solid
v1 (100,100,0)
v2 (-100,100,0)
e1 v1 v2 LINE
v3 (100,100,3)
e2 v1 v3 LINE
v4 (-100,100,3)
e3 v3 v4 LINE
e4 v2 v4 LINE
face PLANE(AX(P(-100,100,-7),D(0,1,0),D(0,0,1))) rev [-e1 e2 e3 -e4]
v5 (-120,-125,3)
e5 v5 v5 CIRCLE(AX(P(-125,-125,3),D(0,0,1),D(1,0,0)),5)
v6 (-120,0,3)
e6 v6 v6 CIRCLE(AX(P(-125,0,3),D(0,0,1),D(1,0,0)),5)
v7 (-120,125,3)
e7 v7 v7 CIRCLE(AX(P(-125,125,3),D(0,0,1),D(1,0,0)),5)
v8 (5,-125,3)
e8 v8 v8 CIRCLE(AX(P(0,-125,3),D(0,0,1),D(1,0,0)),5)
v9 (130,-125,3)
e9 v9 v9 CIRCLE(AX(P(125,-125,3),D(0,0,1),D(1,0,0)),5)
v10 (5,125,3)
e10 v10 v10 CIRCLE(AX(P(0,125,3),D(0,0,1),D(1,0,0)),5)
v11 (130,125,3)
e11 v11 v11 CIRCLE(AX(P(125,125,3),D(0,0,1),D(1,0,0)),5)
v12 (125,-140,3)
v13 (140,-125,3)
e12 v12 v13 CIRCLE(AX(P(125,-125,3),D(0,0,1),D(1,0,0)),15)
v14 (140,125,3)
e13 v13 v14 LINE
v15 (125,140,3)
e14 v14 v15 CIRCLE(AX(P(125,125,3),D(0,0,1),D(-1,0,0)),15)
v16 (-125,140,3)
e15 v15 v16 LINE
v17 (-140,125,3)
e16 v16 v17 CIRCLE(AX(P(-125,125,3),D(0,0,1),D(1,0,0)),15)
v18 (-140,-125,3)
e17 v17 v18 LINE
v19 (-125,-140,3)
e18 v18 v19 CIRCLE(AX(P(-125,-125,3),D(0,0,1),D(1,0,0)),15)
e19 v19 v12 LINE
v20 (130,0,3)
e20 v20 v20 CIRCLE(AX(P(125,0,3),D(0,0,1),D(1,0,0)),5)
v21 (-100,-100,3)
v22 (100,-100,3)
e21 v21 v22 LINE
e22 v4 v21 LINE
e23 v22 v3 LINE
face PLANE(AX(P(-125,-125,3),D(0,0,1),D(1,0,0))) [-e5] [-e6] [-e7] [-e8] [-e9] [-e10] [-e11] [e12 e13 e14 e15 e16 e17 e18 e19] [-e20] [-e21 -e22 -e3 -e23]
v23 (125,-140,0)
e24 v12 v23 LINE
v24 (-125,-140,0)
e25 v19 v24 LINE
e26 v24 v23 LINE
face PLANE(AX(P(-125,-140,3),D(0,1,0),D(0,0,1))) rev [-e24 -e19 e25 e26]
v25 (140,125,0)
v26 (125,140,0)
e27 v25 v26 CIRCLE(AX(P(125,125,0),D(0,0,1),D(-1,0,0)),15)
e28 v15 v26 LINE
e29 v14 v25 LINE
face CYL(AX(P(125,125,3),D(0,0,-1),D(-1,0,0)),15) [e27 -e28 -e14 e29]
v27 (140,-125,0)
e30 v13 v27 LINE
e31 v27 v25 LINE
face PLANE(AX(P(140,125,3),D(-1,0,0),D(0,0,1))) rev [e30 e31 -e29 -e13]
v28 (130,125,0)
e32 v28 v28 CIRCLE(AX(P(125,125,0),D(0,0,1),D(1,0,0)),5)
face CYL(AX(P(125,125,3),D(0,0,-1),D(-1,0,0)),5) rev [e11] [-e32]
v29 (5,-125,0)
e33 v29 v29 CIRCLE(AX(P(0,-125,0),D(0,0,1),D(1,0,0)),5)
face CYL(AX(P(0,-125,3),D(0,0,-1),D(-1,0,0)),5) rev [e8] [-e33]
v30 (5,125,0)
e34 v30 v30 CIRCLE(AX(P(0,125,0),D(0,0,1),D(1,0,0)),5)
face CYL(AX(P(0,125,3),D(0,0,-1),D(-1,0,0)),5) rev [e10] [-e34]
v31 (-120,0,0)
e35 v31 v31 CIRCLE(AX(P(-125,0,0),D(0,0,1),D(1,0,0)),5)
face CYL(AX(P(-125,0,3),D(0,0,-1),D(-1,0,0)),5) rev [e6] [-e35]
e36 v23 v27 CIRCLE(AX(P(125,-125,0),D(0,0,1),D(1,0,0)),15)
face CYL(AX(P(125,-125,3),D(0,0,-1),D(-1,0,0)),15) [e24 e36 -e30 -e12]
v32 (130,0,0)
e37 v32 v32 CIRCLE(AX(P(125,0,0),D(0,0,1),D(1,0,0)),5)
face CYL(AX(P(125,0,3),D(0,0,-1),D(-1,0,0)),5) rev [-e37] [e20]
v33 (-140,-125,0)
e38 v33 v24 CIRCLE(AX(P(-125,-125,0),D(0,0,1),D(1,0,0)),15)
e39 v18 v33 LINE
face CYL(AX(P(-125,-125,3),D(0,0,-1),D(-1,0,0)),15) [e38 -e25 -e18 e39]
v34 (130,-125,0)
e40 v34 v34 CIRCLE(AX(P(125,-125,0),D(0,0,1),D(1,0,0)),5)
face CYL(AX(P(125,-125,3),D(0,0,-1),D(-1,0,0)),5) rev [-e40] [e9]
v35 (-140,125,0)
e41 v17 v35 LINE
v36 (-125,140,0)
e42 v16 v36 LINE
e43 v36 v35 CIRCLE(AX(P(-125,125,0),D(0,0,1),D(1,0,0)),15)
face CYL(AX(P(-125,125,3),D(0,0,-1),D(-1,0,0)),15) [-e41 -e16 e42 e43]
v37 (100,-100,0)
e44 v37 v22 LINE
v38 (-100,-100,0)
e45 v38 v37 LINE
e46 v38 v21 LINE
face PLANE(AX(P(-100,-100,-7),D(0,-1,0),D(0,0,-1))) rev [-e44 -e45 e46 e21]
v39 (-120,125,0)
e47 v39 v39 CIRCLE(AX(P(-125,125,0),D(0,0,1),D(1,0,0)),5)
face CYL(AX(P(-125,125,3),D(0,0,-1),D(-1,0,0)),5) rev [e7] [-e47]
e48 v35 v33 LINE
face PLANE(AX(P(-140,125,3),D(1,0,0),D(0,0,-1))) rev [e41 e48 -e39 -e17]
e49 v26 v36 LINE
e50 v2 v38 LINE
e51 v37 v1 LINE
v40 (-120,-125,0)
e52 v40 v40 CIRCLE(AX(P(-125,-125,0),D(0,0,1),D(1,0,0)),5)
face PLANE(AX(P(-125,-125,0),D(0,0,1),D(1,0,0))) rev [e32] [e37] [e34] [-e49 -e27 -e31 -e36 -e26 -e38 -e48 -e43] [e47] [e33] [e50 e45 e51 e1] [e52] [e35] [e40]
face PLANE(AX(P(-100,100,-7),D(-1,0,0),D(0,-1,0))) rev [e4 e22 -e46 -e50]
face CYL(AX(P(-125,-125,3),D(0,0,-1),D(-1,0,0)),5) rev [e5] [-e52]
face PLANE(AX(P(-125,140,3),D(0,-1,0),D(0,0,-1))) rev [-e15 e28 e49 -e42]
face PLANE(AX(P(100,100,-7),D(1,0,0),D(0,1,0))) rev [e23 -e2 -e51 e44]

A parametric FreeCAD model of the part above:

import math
import FreeCAD as App
import Part
import Sketcher

V = App.Vector
Q = App.Units.Quantity

doc = App.newDocument("Part")
body = doc.addObject("PartDesign::Body", "Body")

# Sketch on XY plane
sketch1 = body.newObject("Sketcher::SketchObject", "Sketch")
sketch1.AttachmentSupport = (doc.getObject("XY_Plane"), [""])
sketch1.MapMode = "FlatFace"
sketch1.addGeometry([
    Part.LineSegment(V(125, 140, 0), V(-125, 140, 0)),  # 0
    Part.ArcOfCircle(Part.Circle(V(-125, 125, 0), V(0, 0, 1), 15), math.radians(90), math.radians(180)),  # 1
    Part.LineSegment(V(-140, 125, 0), V(-140, -125, 0)),  # 2
    Part.ArcOfCircle(Part.Circle(V(-125, -125, 0), V(0, 0, 1), 15), math.radians(180), math.radians(270)),  # 3
    Part.LineSegment(V(-125, -140, 0), V(125, -140, 0)),  # 4
    Part.ArcOfCircle(Part.Circle(V(125, -125, 0), V(0, 0, 1), 15), math.radians(-90), math.radians(0)),  # 5
    Part.LineSegment(V(140, -125, 0), V(140, 125, 0)),  # 6
    Part.ArcOfCircle(Part.Circle(V(125, 125, 0), V(0, 0, 1), 15), math.radians(0), math.radians(90)),  # 7
    Part.Circle(V(125, -125, 0), V(0, 0, 1), 5),  # 8
    Part.Circle(V(0, -125, 0), V(0, 0, 1), 5),  # 9
    Part.Circle(V(-125, -125, 0), V(0, 0, 1), 5),  # 10
    Part.Circle(V(125, 0, 0), V(0, 0, 1), 5),  # 11
    Part.Circle(V(125, 125, 0), V(0, 0, 1), 5),  # 12
    Part.Circle(V(0, 0, 0), V(0, 0, 1), 4),  # 13
    Part.Circle(V(-125, 0, 0), V(0, 0, 1), 5),  # 14
    Part.Circle(V(0, 125, 0), V(0, 0, 1), 5),  # 15
    Part.Circle(V(-125, 125, 0), V(0, 0, 1), 5),  # 16
], False)
sketch1.addConstraint([
    Sketcher.Constraint("Tangent", 0, 2, 1, 1),
    Sketcher.Constraint("Tangent", 1, 2, 2, 1),
    Sketcher.Constraint("Tangent", 2, 2, 3, 1),
    Sketcher.Constraint("Tangent", 3, 2, 4, 1),
    Sketcher.Constraint("Tangent", 4, 2, 5, 1),
    Sketcher.Constraint("Tangent", 5, 2, 6, 1),
    Sketcher.Constraint("Tangent", 6, 2, 7, 1),
    Sketcher.Constraint("Tangent", 7, 2, 0, 1),
    Sketcher.Constraint("Horizontal", 0),
    Sketcher.Constraint("Vertical", 2),
    Sketcher.Constraint("Horizontal", 4),
    Sketcher.Constraint("Vertical", 6),
    Sketcher.Constraint("Coincident", 13, 3, -1, 1),
    Sketcher.Constraint("Coincident", 8, 3, 5, 3),
    Sketcher.Constraint("Coincident", 10, 3, 3, 3),
    Sketcher.Constraint("Coincident", 12, 3, 7, 3),
    Sketcher.Constraint("Coincident", 16, 3, 1, 3),
    Sketcher.Constraint("Equal", 1, 3),
    Sketcher.Constraint("Equal", 3, 5),
    Sketcher.Constraint("Equal", 5, 7),
    Sketcher.Constraint("Equal", 8, 9),
    Sketcher.Constraint("Equal", 9, 10),
    Sketcher.Constraint("Equal", 10, 11),
    Sketcher.Constraint("Equal", 11, 12),
    Sketcher.Constraint("Equal", 12, 14),
    Sketcher.Constraint("Equal", 14, 15),
    Sketcher.Constraint("Equal", 15, 16),
    Sketcher.Constraint("Symmetric", 1, 3, 5, 3, -1, 1),
    Sketcher.Constraint("Symmetric", 11, 3, 14, 3, -1, 1),
    Sketcher.Constraint("Symmetric", 9, 3, 15, 3, -1, 1),
    Sketcher.Constraint("PointOnObject", 9, 3, -2),
    Sketcher.Constraint("PointOnObject", 11, 3, -1),
    Sketcher.Constraint("Horizontal", 8, 3, 9, 3),
    Sketcher.Constraint("Vertical", 8, 3, 11, 3),
    Sketcher.Constraint("Equal", 4, 2),
    Sketcher.Constraint("Diameter", 8, Q("10 mm")),
    Sketcher.Constraint("Diameter", 13, Q("8 mm")),
    Sketcher.Constraint("Radius", 1, Q("15 mm")),
    Sketcher.Constraint("DistanceX", 0, 2, 0, 1, Q("250 mm")),
])
pad1 = body.newObject("PartDesign::Pad", "Pad")
pad1.Profile = sketch1
pad1.Length = 3

# Sketch on XY plane
sketch2 = body.newObject("Sketcher::SketchObject", "Sketch001")
sketch2.AttachmentSupport = (doc.getObject("XY_Plane"), [""])
sketch2.MapMode = "FlatFace"
sketch2.AttachmentOffset = App.Placement(V(0, 0, 3), App.Rotation())
sketch2.addGeometry([
    Part.LineSegment(V(-100, 100, 0), V(-100, -100, 0)),
    Part.LineSegment(V(-100, -100, 0), V(100, -100, 0)),
    Part.LineSegment(V(100, -100, 0), V(100, 100, 0)),
    Part.LineSegment(V(100, 100, 0), V(-100, 100, 0)),
], False)
sketch2.addConstraint([
    Sketcher.Constraint("Coincident", 0, 2, 1, 1),
    Sketcher.Constraint("Coincident", 1, 2, 2, 1),
    Sketcher.Constraint("Coincident", 2, 2, 3, 1),
    Sketcher.Constraint("Coincident", 3, 2, 0, 1),
    Sketcher.Constraint("Vertical", 0),
    Sketcher.Constraint("Horizontal", 1),
    Sketcher.Constraint("Vertical", 2),
    Sketcher.Constraint("Horizontal", 3),
    Sketcher.Constraint("Symmetric", 0, 2, 2, 2, -1, 1),
    Sketcher.Constraint("Equal", 3, 0),
    Sketcher.Constraint("DistanceX", 1, 1, 1, 2, Q("200 mm")),
])
pocket1 = body.newObject("PartDesign::Pocket", "Pocket")
pocket1.Profile = sketch2
pocket1.Length = 10

doc.recompute()
